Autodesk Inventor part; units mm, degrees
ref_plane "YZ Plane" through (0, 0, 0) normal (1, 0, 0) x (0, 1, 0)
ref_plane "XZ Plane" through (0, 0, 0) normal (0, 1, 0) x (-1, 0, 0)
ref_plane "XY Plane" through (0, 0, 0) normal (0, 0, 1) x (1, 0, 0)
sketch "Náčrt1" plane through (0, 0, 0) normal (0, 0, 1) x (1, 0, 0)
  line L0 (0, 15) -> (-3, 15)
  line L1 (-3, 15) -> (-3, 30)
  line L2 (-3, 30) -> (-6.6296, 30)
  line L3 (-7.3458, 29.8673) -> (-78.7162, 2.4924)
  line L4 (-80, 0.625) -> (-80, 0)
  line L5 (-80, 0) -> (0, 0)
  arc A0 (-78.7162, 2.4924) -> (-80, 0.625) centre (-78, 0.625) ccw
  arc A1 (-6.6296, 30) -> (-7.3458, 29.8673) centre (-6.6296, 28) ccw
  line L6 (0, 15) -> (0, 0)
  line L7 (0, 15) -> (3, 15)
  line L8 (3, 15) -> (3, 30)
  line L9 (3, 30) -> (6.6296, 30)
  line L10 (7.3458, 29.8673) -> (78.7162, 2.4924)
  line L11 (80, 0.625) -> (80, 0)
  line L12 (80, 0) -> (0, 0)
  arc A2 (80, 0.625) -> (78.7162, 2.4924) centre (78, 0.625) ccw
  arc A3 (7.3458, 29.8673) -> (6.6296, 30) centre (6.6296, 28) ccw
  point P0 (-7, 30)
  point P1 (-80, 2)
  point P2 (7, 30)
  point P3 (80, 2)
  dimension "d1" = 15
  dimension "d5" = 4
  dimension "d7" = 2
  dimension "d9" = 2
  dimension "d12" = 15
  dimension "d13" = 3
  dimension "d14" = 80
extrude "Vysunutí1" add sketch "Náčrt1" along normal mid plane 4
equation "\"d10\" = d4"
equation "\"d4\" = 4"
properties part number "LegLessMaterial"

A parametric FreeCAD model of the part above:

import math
import FreeCAD as App
import Part
import Sketcher

V = App.Vector

doc = App.newDocument("Part")
body = doc.addObject("PartDesign::Body", "Body")

# Sketch on XY plane
sketch1 = doc.addObject("Sketcher::SketchObject", "Sketch")
body.addObject(sketch1)
sketch1.AttachmentSupport = (doc.XY_Plane, [""])
sketch1.MapMode = "FlatFace"
sketch1.addGeometry([
    Part.LineSegment(V(-80, 0, 0), V(80, 0, 0)),  # 0
    Part.LineSegment(V(80, 0, 0), V(80, 0.625, 0)),  # 1
    Part.ArcOfCircle(Part.Circle(V(78, 0.625, 0), V(0, 0, 1), 2), math.radians(0), math.radians(69.016788)),  # 2
    Part.LineSegment(V(78.7162, 2.4924, 0), V(7.3458, 29.8673, 0)),  # 3
    Part.ArcOfCircle(Part.Circle(V(6.629094, 27.998204, 0), V(0, 0, 1), 2.001796), math.radians(69.020644), math.radians(89.985516)),  # 4
    Part.LineSegment(V(6.6296, 30, 0), V(3, 30, 0)),  # 5
    Part.LineSegment(V(3, 30, 0), V(3, 15, 0)),  # 6
    Part.LineSegment(V(3, 15, 0), V(-3, 15, 0)),  # 7
    Part.LineSegment(V(-3, 15, 0), V(-3, 30, 0)),  # 8
    Part.LineSegment(V(-3, 30, 0), V(-6.6296, 30, 0)),  # 9
    Part.ArcOfCircle(Part.Circle(V(-6.62977, 28.001854, 0), V(0, 0, 1), 1.998146), math.radians(89.995118), math.radians(110.998722)),  # 10
    Part.LineSegment(V(-7.3458, 29.8673, 0), V(-78.7162, 2.4924, 0)),  # 11
    Part.ArcOfCircle(Part.Circle(V(-78, 0.625, 0), V(0, 0, 1), 2.000031), math.radians(110.983212), math.radians(180)),  # 12
    Part.LineSegment(V(-80, 0.625, 0), V(-80, 0, 0)),  # 13
], False)
sketch1.addConstraint([
    Sketcher.Constraint("Coincident", 0, 2, 1, 1),
    Sketcher.Constraint("Coincident", 1, 2, 2, 1),
    Sketcher.Constraint("Coincident", 2, 2, 3, 1),
    Sketcher.Constraint("Coincident", 3, 2, 4, 1),
    Sketcher.Constraint("Coincident", 4, 2, 5, 1),
    Sketcher.Constraint("Coincident", 5, 2, 6, 1),
    Sketcher.Constraint("Coincident", 6, 2, 7, 1),
    Sketcher.Constraint("Coincident", 7, 2, 8, 1),
    Sketcher.Constraint("Coincident", 8, 2, 9, 1),
    Sketcher.Constraint("Coincident", 9, 2, 10, 1),
    Sketcher.Constraint("Coincident", 10, 2, 11, 1),
    Sketcher.Constraint("Coincident", 11, 2, 12, 1),
    Sketcher.Constraint("Coincident", 12, 2, 13, 1),
    Sketcher.Constraint("Coincident", 13, 2, 0, 1),
    Sketcher.Constraint("Horizontal", 0),
    Sketcher.Constraint("Vertical", 1),
    Sketcher.Constraint("Horizontal", 5),
    Sketcher.Constraint("Vertical", 6),
    Sketcher.Constraint("Horizontal", 7),
    Sketcher.Constraint("Vertical", 8),
    Sketcher.Constraint("Horizontal", 9),
    Sketcher.Constraint("Vertical", 13),
    Sketcher.Constraint("PointOnObject", 0, 2, -1),
    Sketcher.Constraint("Radius", 2, 2.0),
    Sketcher.Constraint("Radius", 12, 2.0),
    Sketcher.Constraint("DistanceY", 6, 2, 6, 1, 15.0),
    Sketcher.Constraint("DistanceY", 8, 1, 8, 2, 15.0),
    Sketcher.Constraint("DistanceX", -1, 1, 0, 2, 80.0),
    Sketcher.Constraint("DistanceX", -1, 1, 5, 2, 3.0),
    Sketcher.Constraint("DistanceY", -1, 1, 6, 2, 15.0),
    Sketcher.Constraint("DistanceX", 7, 2, -1, 1, 3.0),
    Sketcher.Constraint("DistanceX", 12, 2, -1, 1, 80.0),
    Sketcher.Constraint("Radius", 4, 2.0018),
    Sketcher.Constraint("Radius", 10, 1.9981),
    Sketcher.Constraint("DistanceY", 1, 1, 1, 2, 0.625),
    Sketcher.Constraint("DistanceY", 13, 2, 13, 1, 0.625),
    Sketcher.Constraint("DistanceX", 5, 2, 5, 1, 3.6296),
    Sketcher.Constraint("DistanceX", 9, 2, 9, 1, 3.6296),
    Sketcher.Constraint("DistanceY", -1, 1, 2, 3, 0.625),
    Sketcher.Constraint("DistanceX", -1, 1, 4, 3, 6.629),
    Sketcher.Constraint("DistanceY", -1, 1, 12, 3, 0.625),
    Sketcher.Constraint("DistanceX", 4, 3, 2, 2, 72.087),
    Sketcher.Constraint("DistanceX", 10, 3, 2, 2, 85.346),
    Sketcher.Constraint("DistanceY", 4, 3, 3, 2, 1.869),
    Sketcher.Constraint("DistanceX", 10, 2, 10, 3, 0.716),
    Sketcher.Constraint("DistanceY", 11, 2, 10, 2, 27.375),
])
pad1 = doc.addObject("PartDesign::Pad", "Pad")
body.addObject(pad1)
pad1.Profile = sketch1
pad1.Length = 4
pad1.Midplane = True

doc.recompute()
